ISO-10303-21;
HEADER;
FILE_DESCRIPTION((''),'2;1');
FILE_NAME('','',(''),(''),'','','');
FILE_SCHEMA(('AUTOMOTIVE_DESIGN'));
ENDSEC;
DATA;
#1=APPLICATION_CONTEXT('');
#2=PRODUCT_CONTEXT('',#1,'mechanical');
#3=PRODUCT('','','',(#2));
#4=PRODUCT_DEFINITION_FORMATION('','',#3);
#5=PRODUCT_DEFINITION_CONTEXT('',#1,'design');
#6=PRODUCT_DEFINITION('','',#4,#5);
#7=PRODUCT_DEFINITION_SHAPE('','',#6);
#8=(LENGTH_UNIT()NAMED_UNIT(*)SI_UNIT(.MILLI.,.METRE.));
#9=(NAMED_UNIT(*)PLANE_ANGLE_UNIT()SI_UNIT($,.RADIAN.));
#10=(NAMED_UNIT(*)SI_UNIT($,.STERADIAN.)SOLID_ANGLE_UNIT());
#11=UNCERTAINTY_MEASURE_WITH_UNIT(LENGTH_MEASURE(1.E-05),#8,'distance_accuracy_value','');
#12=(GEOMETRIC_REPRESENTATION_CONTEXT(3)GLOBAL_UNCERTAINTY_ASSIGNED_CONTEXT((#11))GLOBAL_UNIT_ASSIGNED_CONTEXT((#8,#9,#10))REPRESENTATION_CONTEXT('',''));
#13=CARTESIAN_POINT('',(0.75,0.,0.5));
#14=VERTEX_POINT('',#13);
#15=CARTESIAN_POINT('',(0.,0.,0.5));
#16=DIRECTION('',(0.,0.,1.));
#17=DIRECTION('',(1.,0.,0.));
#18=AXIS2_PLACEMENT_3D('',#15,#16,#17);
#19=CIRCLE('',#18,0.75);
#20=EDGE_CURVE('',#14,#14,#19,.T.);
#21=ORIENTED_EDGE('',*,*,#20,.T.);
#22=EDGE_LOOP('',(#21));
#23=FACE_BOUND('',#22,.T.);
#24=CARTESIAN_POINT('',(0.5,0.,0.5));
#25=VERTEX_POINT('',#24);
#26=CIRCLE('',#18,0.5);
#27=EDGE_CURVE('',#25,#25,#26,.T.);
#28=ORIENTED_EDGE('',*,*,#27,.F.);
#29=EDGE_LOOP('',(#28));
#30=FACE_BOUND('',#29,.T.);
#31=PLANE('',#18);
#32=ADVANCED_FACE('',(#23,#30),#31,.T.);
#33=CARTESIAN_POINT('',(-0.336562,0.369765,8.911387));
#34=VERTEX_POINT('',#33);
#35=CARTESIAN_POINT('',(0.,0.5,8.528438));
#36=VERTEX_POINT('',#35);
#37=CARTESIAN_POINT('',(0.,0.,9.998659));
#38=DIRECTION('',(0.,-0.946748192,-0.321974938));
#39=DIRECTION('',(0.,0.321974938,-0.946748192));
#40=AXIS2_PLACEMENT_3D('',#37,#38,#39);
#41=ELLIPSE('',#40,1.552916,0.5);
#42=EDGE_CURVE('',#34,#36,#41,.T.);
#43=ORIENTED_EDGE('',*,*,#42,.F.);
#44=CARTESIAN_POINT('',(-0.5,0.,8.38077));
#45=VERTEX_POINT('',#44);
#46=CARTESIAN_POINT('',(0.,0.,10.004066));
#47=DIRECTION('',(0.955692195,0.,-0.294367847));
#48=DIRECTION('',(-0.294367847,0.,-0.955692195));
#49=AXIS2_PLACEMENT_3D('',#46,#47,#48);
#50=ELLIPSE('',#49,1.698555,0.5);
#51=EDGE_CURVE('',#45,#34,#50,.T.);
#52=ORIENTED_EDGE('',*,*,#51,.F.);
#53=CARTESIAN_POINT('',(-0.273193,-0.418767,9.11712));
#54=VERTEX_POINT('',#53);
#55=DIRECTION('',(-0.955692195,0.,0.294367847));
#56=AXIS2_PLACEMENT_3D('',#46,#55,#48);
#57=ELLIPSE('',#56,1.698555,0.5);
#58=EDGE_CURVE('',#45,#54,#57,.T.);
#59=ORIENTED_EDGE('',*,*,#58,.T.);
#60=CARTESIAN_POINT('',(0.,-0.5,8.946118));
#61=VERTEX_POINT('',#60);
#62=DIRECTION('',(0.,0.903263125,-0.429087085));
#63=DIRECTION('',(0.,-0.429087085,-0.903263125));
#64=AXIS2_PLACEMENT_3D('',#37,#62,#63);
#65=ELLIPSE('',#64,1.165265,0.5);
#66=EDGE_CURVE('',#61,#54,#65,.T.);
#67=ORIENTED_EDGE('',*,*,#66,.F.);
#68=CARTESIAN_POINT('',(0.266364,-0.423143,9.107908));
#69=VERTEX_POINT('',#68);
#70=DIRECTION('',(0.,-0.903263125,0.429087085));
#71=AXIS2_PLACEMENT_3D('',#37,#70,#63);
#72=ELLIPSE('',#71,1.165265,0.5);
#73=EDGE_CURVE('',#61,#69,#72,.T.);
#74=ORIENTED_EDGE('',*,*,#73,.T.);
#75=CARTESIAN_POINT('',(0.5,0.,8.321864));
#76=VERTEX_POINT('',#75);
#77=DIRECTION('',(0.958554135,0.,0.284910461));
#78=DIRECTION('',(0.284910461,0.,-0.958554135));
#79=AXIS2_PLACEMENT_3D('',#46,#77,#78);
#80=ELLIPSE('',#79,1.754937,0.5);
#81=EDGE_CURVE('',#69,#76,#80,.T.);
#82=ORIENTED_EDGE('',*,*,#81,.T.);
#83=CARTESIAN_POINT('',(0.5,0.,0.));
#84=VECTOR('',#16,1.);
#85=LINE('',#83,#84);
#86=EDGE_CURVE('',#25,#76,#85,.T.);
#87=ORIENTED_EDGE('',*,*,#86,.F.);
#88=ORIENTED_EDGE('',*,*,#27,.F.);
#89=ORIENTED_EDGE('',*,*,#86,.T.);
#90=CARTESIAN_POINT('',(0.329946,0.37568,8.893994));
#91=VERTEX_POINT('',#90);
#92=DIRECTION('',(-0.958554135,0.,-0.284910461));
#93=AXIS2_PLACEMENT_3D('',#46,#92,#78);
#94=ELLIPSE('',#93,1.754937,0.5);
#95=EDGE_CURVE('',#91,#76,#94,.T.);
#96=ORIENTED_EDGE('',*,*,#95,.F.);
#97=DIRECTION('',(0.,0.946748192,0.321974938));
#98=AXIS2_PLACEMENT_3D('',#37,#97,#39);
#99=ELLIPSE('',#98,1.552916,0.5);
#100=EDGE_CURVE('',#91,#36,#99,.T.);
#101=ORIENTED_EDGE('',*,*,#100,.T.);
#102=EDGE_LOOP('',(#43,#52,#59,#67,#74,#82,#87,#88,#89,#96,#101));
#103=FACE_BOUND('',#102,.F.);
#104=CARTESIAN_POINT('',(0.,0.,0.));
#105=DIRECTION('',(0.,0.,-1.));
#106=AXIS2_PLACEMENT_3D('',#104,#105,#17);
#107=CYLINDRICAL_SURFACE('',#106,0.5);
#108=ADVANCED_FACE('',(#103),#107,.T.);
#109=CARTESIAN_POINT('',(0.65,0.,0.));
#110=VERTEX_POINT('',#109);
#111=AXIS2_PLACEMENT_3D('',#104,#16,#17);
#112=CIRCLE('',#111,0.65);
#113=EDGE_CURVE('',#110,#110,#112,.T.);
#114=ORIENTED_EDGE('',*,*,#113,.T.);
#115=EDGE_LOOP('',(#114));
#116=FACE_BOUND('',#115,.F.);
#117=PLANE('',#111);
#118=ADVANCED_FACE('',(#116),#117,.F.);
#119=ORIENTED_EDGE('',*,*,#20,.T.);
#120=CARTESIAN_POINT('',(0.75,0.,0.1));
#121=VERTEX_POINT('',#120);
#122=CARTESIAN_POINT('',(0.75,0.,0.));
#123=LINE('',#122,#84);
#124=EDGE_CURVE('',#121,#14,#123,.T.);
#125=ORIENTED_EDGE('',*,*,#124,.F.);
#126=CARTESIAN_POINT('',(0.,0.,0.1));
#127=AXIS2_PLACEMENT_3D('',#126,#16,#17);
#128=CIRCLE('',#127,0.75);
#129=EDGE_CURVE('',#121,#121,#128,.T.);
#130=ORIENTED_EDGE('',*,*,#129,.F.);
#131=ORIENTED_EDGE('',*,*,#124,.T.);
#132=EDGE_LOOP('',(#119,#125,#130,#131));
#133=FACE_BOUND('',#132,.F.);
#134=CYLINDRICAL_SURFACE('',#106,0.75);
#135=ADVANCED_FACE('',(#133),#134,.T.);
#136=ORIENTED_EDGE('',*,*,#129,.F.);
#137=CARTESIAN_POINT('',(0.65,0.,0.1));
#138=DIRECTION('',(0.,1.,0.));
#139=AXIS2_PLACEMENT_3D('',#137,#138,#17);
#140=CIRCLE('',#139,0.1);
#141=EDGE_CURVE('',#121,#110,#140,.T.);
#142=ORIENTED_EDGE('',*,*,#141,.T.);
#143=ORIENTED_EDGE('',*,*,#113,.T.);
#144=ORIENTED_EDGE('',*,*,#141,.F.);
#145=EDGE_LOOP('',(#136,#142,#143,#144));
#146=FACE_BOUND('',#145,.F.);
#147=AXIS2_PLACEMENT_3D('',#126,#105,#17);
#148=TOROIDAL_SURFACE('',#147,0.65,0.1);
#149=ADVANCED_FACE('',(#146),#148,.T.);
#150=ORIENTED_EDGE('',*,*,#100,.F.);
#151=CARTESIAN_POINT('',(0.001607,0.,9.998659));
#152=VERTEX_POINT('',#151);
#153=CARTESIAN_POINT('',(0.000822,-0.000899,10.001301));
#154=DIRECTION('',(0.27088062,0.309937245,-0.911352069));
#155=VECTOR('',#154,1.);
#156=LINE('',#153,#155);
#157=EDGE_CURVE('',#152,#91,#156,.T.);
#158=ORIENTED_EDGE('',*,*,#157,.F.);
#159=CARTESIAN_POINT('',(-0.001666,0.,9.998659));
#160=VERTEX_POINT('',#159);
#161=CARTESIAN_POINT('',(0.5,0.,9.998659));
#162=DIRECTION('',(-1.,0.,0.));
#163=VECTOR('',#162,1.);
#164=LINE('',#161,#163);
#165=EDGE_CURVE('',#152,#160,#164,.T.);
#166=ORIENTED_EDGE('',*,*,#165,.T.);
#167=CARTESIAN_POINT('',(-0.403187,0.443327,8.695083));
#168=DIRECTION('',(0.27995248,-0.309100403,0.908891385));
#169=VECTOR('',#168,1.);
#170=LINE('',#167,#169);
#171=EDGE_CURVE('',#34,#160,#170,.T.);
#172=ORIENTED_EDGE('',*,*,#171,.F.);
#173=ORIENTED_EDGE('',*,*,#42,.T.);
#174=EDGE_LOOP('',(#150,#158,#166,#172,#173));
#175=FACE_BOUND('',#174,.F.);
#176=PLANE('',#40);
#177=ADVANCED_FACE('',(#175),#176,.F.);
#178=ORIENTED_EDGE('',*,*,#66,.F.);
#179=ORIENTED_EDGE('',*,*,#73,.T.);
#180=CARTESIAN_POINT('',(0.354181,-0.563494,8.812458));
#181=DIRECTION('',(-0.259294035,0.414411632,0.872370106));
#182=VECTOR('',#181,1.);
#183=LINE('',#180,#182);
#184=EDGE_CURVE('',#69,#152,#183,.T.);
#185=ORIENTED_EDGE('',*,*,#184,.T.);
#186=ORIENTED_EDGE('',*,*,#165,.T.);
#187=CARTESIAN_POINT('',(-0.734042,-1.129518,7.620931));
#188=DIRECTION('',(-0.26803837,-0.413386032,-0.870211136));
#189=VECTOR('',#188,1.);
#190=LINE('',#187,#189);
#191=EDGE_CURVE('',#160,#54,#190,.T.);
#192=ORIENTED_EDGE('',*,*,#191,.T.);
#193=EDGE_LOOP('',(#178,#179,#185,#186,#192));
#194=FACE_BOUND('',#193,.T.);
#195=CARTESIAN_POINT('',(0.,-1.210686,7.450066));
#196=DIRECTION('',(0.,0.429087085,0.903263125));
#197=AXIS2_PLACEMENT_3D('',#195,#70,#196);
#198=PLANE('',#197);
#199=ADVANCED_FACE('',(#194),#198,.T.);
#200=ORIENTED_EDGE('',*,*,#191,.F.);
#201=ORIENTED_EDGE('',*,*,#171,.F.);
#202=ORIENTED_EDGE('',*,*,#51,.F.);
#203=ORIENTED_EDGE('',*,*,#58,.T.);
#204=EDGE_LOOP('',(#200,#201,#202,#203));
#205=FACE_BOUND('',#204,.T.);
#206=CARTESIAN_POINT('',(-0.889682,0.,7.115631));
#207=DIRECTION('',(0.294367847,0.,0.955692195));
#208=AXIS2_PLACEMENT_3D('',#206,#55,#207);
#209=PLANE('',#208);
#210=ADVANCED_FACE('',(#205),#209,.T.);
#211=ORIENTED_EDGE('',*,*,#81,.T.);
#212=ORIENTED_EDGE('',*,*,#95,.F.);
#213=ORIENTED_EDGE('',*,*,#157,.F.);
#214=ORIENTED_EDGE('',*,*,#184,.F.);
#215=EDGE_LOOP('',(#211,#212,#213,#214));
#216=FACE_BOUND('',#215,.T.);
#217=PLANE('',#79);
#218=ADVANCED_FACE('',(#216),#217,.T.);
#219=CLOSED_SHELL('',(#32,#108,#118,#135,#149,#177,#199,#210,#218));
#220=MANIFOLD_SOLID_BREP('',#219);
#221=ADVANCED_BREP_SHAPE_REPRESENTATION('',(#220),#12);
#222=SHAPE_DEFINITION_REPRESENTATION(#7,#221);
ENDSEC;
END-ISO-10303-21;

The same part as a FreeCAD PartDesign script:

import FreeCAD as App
import Part
import Sketcher
from FreeCAD import Vector


def edges_at(feature, points):
    """Names of the edges that pass closest to the given points."""
    edges = feature.Shape.Edges
    near = lambda p: min(range(len(edges)), key=lambda i: edges[i].distToShape(Part.Vertex(*p))[0])
    return sorted({f"Edge{near(p) + 1}" for p in points})

doc = App.newDocument("Part")
params = doc.addObject("Spreadsheet::Sheet", "Params")
for row, (alias, value) in enumerate([
    ("sketch1_diameter", "1 mm"),
    ("pad1_length", "10 mm"),
    ("sketch2_diameter", "1 mm"),
    ("sketch2_diameter2", "1.5 mm"),
    ("pad2_length", "0.5 mm"),
    ("fillet_radius", "0.1 mm"),
], start=1):
    params.set(f"A{row}", alias)
    params.set(f"B{row}", "=" + value)
    params.setAlias(f"B{row}", alias)

body = doc.addObject("PartDesign::Body", "Body")

# Sketch on XY plane
sketch1 = body.newObject("Sketcher::SketchObject", "Sketch")
sketch1.AttachmentSupport = (doc.getObject("XY_Plane"), [""])
sketch1.MapMode = "FlatFace"
sketch1.addGeometry(Part.Circle(Vector(0, 0, 0), Vector(0, 0, 1), 0.5), False)
sketch1.addConstraint([
    Sketcher.Constraint("Coincident", 0, 3, -1, 1),
    Sketcher.Constraint("Diameter", 0, 1.0),
])
sketch1.setExpression("Constraints[1]", "Params.sketch1_diameter")
pad1 = body.newObject("PartDesign::Pad", "Pad")
pad1.Profile = sketch1
pad1.setExpression("Length", "Params.pad1_length")

# Sketch on XY plane
sketch2 = body.newObject("Sketcher::SketchObject", "Sketch001")
sketch2.AttachmentSupport = (doc.getObject("XY_Plane"), [""])
sketch2.MapMode = "FlatFace"
sketch2.addGeometry([
    Part.Circle(Vector(0, 0, 0), Vector(0, 0, 1), 0.75),
    Part.Circle(Vector(0, 0, 0), Vector(0, 0, 1), 0.5),
], False)
sketch2.addConstraint([
    Sketcher.Constraint("Coincident", 0, 3, -1, 1),
    Sketcher.Constraint("Coincident", 1, 3, -1, 1),
    Sketcher.Constraint("Diameter", 1, 1.0),
    Sketcher.Constraint("Diameter", 0, 1.5),
])
sketch2.setExpression("Constraints[2]", "Params.sketch2_diameter")
sketch2.setExpression("Constraints[3]", "Params.sketch2_diameter2")
pad2 = body.newObject("PartDesign::Pad", "Pad001")
pad2.Profile = sketch2
pad2.setExpression("Length", "Params.pad2_length")
doc.recompute()

fillet = body.newObject("PartDesign::Fillet", "Fillet")
fillet.Base = (pad2, edges_at(pad2, [(-0.75, 0, 0)]))
fillet.setExpression("Radius", "Params.fillet_radius")

# Sketch on YZ plane
sketch3 = body.newObject("Sketcher::SketchObject", "Sketch002")
sketch3.AttachmentSupport = (doc.getObject("YZ_Plane"), [""])
sketch3.MapMode = "FlatFace"
sketch3.addGeometry([
    Part.LineSegment(Vector(-1.210686, 7.450066, 0), Vector(0, 9.998659, 0)),  # 0
    Part.LineSegment(Vector(0, 9.998659, 0), Vector(0.866738, 7.450066, 0)),  # 1
    Part.LineSegment(Vector(0.866738, 7.450066, 0), Vector(0.866738, 10.823204, 0)),  # 2
    Part.LineSegment(Vector(0.866738, 10.823204, 0), Vector(-1.210686, 10.823204, 0)),  # 3
    Part.LineSegment(Vector(-1.210686, 10.823204, 0), Vector(-1.210686, 7.450066, 0)),  # 4
], False)
sketch3.addConstraint([
    Sketcher.Constraint("Coincident", 0, 2, 1, 1),
    Sketcher.Constraint("Coincident", 1, 2, 2, 1),
    Sketcher.Constraint("Coincident", 2, 2, 3, 1),
    Sketcher.Constraint("Coincident", 3, 2, 4, 1),
    Sketcher.Constraint("Coincident", 4, 2, 0, 1),
    Sketcher.Constraint("Vertical", 2),
    Sketcher.Constraint("Horizontal", 3),
    Sketcher.Constraint("Vertical", 4),
    Sketcher.Constraint("PointOnObject", 0, 2, -2),
    Sketcher.Constraint("Horizontal", 1, 2, 4, 2),
    Sketcher.Constraint("DistanceY", 2, 1, 2, 2, 3.373139),
    Sketcher.Constraint("Distance", 0, 2.82154),
    Sketcher.Constraint("DistanceX", 3, 2, 3, 1, 2.077425),
    Sketcher.Constraint("DistanceY", -1, 1, 0, 2, 9.998659),
    Sketcher.Constraint("DistanceX", -1, 1, 1, 2, 0.866738),
])
pocket1 = body.newObject("PartDesign::Pocket", "Pocket")
pocket1.Profile = sketch3
pocket1.Type = "ThroughAll"
pocket1.Midplane = True

# Sketch on XZ plane
sketch4 = body.newObject("Sketcher::SketchObject", "Sketch003")
sketch4.AttachmentSupport = (doc.getObject("XZ_Plane"), [""])
sketch4.MapMode = "FlatFace"
sketch4.addGeometry([
    Part.LineSegment(Vector(-0.889682, 7.115631, 0), Vector(0, 10.004066, 0)),  # 0
    Part.LineSegment(Vector(0, 10.004066, 0), Vector(0.858528, 7.115631, 0)),  # 1
    Part.LineSegment(Vector(0.858528, 7.115631, 0), Vector(1.090156, 10.493767, 0)),  # 2
    Part.LineSegment(Vector(1.090156, 10.493767, 0), Vector(-0.889682, 10.493767, 0)),  # 3
    Part.LineSegment(Vector(-0.889682, 10.493767, 0), Vector(-0.889682, 7.115631, 0)),  # 4
], False)
sketch4.addConstraint([
    Sketcher.Constraint("Coincident", 0, 2, 1, 1),
    Sketcher.Constraint("Coincident", 1, 2, 2, 1),
    Sketcher.Constraint("Coincident", 2, 2, 3, 1),
    Sketcher.Constraint("Coincident", 3, 2, 4, 1),
    Sketcher.Constraint("Coincident", 4, 2, 0, 1),
    Sketcher.Constraint("Horizontal", 3),
    Sketcher.Constraint("Vertical", 4),
    Sketcher.Constraint("PointOnObject", 0, 2, -2),
    Sketcher.Constraint("Horizontal", 1, 2, 4, 2),
    Sketcher.Constraint("DistanceX", 3, 2, 3, 1, 1.979839),
    Sketcher.Constraint("DistanceY", 0, 2, 2, 2, 0.489702),
    Sketcher.Constraint("Distance", 0, 3.022349),
    Sketcher.Constraint("Distance", 2, 3.386068),
    Sketcher.Constraint("DistanceY", 4, 2, 4, 1, 3.378137),
    Sketcher.Constraint("DistanceY", -1, 1, 1, 2, 7.115631),
])
pocket2 = body.newObject("PartDesign::Pocket", "Pocket001")
pocket2.Profile = sketch4
pocket2.Type = "ThroughAll"
pocket2.Midplane = True

doc.recompute()
